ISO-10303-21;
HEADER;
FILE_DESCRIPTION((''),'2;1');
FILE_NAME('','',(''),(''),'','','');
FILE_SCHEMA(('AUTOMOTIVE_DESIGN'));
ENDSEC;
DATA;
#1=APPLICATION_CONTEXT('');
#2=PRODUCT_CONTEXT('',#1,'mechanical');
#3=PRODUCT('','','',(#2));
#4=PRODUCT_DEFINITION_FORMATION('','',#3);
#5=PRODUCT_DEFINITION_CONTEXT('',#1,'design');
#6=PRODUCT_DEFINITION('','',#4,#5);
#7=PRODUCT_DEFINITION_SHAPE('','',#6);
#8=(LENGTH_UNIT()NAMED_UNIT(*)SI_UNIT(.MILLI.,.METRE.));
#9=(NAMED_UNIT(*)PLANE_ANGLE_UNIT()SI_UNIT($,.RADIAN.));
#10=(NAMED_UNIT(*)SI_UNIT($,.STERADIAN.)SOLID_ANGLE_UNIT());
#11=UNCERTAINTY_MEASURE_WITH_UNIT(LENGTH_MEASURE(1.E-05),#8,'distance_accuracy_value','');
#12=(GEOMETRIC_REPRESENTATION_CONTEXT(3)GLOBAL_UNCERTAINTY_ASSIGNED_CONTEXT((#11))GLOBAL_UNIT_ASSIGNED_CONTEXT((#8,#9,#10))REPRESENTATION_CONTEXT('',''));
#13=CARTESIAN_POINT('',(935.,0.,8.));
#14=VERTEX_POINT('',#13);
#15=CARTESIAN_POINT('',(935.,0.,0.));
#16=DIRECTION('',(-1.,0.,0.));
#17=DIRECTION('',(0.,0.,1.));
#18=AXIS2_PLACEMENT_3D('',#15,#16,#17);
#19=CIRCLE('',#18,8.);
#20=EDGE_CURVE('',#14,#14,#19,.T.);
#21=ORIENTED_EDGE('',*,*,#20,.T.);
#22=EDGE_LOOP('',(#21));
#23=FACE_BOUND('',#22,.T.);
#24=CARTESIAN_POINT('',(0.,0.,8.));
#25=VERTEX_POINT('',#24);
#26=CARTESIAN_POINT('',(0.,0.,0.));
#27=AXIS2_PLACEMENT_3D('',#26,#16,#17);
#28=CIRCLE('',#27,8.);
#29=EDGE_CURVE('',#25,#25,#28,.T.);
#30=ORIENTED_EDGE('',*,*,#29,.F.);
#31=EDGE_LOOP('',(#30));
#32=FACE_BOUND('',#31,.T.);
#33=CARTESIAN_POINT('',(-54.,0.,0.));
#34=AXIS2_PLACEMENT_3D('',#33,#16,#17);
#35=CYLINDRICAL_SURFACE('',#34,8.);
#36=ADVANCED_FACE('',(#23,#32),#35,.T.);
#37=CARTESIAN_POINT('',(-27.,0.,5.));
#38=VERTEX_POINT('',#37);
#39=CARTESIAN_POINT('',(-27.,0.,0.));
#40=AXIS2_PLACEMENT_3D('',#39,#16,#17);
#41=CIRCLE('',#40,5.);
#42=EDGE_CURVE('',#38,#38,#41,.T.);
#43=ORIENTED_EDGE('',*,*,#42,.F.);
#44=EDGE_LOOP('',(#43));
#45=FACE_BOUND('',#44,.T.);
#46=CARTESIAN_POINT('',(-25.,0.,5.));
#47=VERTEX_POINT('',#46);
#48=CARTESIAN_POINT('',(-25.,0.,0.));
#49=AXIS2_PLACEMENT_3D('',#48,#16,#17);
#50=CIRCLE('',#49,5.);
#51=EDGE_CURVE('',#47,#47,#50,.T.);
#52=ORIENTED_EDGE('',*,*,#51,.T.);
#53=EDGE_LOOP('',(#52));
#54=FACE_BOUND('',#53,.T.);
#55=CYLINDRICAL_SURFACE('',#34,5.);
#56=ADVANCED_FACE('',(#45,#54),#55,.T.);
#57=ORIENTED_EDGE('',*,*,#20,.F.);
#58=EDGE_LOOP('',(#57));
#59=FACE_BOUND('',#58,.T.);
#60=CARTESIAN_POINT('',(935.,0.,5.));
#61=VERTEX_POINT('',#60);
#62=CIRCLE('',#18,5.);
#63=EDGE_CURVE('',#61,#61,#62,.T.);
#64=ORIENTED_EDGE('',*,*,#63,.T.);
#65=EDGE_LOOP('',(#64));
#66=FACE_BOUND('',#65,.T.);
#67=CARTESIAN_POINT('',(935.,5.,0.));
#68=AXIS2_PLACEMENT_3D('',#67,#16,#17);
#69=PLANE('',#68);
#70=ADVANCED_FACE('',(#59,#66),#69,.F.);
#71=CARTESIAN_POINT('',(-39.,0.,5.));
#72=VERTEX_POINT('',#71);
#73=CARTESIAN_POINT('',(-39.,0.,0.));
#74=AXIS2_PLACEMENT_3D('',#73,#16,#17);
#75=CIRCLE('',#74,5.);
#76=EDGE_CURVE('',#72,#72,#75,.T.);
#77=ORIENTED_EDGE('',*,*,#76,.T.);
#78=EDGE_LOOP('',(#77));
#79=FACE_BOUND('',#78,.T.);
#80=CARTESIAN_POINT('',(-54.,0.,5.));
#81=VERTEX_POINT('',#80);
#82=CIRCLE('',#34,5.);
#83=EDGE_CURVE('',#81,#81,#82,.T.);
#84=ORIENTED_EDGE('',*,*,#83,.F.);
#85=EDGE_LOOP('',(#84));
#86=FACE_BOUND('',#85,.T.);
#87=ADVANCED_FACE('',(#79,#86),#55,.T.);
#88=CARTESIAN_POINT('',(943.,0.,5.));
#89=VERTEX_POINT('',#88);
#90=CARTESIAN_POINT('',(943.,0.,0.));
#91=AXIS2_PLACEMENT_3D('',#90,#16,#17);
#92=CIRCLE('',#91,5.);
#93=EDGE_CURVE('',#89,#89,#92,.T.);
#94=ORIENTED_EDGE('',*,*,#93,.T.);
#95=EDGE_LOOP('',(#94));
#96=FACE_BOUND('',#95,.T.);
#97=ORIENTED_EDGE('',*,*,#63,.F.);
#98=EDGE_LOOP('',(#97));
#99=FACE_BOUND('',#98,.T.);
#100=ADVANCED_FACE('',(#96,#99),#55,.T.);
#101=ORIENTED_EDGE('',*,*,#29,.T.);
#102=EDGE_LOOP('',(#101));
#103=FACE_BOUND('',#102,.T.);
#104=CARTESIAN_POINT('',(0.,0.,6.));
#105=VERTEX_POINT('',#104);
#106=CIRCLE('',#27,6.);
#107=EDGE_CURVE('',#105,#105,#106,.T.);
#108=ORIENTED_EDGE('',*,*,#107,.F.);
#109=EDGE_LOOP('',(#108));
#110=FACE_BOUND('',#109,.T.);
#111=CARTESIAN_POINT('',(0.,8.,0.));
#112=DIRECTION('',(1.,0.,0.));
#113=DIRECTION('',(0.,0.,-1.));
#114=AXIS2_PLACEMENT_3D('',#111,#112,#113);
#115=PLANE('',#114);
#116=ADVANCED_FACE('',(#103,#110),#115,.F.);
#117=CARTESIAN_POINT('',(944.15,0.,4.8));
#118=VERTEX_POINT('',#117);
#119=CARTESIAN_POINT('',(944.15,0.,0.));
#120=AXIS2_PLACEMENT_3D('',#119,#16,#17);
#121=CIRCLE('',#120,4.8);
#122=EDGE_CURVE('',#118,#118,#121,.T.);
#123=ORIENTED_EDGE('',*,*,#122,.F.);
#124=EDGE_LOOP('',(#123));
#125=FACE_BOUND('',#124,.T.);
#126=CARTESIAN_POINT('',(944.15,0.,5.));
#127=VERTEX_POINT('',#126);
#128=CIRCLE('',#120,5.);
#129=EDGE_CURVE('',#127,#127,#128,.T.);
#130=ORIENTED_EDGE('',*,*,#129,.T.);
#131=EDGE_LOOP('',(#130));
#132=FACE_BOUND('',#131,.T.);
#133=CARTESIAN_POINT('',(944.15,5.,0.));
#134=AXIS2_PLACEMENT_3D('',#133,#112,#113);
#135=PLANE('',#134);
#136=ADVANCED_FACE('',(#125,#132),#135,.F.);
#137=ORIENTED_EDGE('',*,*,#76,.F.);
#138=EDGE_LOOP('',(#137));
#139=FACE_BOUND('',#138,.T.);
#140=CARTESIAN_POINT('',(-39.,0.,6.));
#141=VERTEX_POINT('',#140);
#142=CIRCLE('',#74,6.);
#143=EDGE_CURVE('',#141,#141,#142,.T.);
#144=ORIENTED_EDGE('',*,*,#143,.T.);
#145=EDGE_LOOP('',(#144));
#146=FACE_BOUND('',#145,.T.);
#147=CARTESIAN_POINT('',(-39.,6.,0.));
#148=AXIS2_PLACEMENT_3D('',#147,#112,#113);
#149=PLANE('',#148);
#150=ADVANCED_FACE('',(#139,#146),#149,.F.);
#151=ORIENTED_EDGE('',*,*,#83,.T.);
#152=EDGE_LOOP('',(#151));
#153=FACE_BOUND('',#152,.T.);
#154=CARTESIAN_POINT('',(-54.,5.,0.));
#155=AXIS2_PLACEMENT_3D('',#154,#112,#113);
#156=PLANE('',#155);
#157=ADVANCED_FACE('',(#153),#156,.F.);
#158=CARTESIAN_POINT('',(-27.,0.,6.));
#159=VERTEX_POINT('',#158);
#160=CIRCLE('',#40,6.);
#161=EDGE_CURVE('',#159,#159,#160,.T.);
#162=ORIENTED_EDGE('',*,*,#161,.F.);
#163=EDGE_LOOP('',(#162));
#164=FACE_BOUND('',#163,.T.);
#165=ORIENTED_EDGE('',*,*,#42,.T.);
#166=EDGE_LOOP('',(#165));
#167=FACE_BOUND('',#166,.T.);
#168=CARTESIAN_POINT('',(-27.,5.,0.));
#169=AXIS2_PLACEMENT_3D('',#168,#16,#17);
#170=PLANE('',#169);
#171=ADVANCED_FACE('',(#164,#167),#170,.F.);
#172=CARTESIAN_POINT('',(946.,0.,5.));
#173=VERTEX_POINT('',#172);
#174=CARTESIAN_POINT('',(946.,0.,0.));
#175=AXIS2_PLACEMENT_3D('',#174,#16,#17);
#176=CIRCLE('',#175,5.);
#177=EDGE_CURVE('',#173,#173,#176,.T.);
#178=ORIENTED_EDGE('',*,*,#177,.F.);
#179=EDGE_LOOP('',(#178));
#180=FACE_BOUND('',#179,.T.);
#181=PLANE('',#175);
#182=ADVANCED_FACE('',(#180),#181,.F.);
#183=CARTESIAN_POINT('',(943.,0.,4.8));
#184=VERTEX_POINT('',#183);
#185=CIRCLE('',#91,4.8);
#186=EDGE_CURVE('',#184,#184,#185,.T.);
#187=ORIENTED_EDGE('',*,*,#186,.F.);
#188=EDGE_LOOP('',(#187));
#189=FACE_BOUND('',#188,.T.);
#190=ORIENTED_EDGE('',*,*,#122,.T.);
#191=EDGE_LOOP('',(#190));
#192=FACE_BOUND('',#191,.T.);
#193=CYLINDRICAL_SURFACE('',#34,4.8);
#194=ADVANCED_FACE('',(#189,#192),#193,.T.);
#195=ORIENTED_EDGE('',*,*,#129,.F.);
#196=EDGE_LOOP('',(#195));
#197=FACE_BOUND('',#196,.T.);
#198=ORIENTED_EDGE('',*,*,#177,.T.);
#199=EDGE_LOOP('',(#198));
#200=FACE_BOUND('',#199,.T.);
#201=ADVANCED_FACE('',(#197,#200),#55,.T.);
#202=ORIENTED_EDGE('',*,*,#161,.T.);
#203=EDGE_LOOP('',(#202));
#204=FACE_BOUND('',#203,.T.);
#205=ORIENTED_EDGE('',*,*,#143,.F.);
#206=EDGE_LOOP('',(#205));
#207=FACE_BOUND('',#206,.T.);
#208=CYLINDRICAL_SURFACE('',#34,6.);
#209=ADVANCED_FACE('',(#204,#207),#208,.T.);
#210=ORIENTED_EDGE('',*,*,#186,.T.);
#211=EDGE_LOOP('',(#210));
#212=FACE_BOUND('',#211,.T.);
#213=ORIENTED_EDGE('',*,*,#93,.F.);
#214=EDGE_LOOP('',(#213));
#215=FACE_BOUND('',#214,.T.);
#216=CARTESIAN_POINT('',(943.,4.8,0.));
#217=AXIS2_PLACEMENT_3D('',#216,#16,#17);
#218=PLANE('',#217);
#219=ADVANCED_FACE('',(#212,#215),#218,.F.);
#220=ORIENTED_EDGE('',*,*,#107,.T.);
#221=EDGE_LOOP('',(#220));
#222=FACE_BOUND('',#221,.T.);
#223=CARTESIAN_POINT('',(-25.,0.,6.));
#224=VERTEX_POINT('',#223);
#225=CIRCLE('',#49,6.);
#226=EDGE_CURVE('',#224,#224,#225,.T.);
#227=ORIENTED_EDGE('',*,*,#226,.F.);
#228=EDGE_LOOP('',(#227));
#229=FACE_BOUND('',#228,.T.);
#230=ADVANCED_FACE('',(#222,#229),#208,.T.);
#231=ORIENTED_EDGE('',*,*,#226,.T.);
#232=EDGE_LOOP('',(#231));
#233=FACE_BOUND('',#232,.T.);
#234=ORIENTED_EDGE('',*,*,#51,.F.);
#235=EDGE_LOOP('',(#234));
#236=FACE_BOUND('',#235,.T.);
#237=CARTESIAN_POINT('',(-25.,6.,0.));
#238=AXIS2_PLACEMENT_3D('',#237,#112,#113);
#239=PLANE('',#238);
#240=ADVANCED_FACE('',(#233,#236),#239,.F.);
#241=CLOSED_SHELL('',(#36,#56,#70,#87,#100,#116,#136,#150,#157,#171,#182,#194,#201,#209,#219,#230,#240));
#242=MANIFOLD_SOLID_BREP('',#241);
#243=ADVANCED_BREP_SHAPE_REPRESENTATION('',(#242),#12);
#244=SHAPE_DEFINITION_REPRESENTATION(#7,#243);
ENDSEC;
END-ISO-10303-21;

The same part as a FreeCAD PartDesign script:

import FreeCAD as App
import Part
import Sketcher

doc = App.newDocument("Part")
body = doc.addObject("PartDesign::Body", "Body")

# Sketch on XY plane
sketch1 = body.newObject("Sketcher::SketchObject", "Sketch")
sketch1.AttachmentSupport = (doc.getObject("XY_Plane"), [""])
sketch1.MapMode = "FlatFace"
sketch1.addGeometry([
    Part.LineSegment(App.Vector(-54, 0, 0), App.Vector(946, 0, 0)),  # 0
    Part.LineSegment(App.Vector(946, 0, 0), App.Vector(946, 5, 0)),  # 1
    Part.LineSegment(App.Vector(946, 5, 0), App.Vector(944.15, 5, 0)),  # 2
    Part.LineSegment(App.Vector(944.15, 5, 0), App.Vector(944.15, 4.8, 0)),  # 3
    Part.LineSegment(App.Vector(944.15, 4.8, 0), App.Vector(943, 4.8, 0)),  # 4
    Part.LineSegment(App.Vector(943, 4.8, 0), App.Vector(943, 5, 0)),  # 5
    Part.LineSegment(App.Vector(943, 5, 0), App.Vector(935, 5, 0)),  # 6
    Part.LineSegment(App.Vector(935, 5, 0), App.Vector(935, 8, 0)),  # 7
    Part.LineSegment(App.Vector(935, 8, 0), App.Vector(0, 8, 0)),  # 8
    Part.LineSegment(App.Vector(0, 8, 0), App.Vector(0, 6, 0)),  # 9
    Part.LineSegment(App.Vector(0, 6, 0), App.Vector(-25, 6, 0)),  # 10
    Part.LineSegment(App.Vector(-25, 6, 0), App.Vector(-25, 5, 0)),  # 11
    Part.LineSegment(App.Vector(-25, 5, 0), App.Vector(-27, 5, 0)),  # 12
    Part.LineSegment(App.Vector(-27, 5, 0), App.Vector(-27, 6, 0)),  # 13
    Part.LineSegment(App.Vector(-27, 6, 0), App.Vector(-39, 6, 0)),  # 14
    Part.LineSegment(App.Vector(-39, 6, 0), App.Vector(-39, 5, 0)),  # 15
    Part.LineSegment(App.Vector(-39, 5, 0), App.Vector(-54, 5, 0)),  # 16
    Part.LineSegment(App.Vector(-54, 5, 0), App.Vector(-54, 0, 0)),  # 17
], False)
sketch1.addConstraint([
    Sketcher.Constraint("Coincident", 0, 2, 1, 1),
    Sketcher.Constraint("Coincident", 1, 2, 2, 1),
    Sketcher.Constraint("Coincident", 2, 2, 3, 1),
    Sketcher.Constraint("Coincident", 3, 2, 4, 1),
    Sketcher.Constraint("Coincident", 4, 2, 5, 1),
    Sketcher.Constraint("Coincident", 5, 2, 6, 1),
    Sketcher.Constraint("Coincident", 6, 2, 7, 1),
    Sketcher.Constraint("Coincident", 7, 2, 8, 1),
    Sketcher.Constraint("Coincident", 8, 2, 9, 1),
    Sketcher.Constraint("Coincident", 9, 2, 10, 1),
    Sketcher.Constraint("Coincident", 10, 2, 11, 1),
    Sketcher.Constraint("Coincident", 11, 2, 12, 1),
    Sketcher.Constraint("Coincident", 12, 2, 13, 1),
    Sketcher.Constraint("Coincident", 13, 2, 14, 1),
    Sketcher.Constraint("Coincident", 14, 2, 15, 1),
    Sketcher.Constraint("Coincident", 15, 2, 16, 1),
    Sketcher.Constraint("Coincident", 16, 2, 17, 1),
    Sketcher.Constraint("Coincident", 17, 2, 0, 1),
    Sketcher.Constraint("Horizontal", 0),
    Sketcher.Constraint("Vertical", 1),
    Sketcher.Constraint("Horizontal", 2),
    Sketcher.Constraint("Vertical", 3),
    Sketcher.Constraint("Horizontal", 4),
    Sketcher.Constraint("Vertical", 5),
    Sketcher.Constraint("Horizontal", 6),
    Sketcher.Constraint("Vertical", 7),
    Sketcher.Constraint("Horizontal", 8),
    Sketcher.Constraint("Vertical", 9),
    Sketcher.Constraint("Horizontal", 10),
    Sketcher.Constraint("Vertical", 11),
    Sketcher.Constraint("Horizontal", 12),
    Sketcher.Constraint("Vertical", 13),
    Sketcher.Constraint("Horizontal", 14),
    Sketcher.Constraint("Vertical", 15),
    Sketcher.Constraint("Horizontal", 16),
    Sketcher.Constraint("Vertical", 17),
    Sketcher.Constraint("PointOnObject", 0, 2, -1),
    Sketcher.Constraint("PointOnObject", 8, 2, -2),
    Sketcher.Constraint("Horizontal", 2, 2, 5, 2),
    Sketcher.Constraint("Horizontal", 6, 2, 11, 2),
    Sketcher.Constraint("Horizontal", 10, 2, 13, 2),
    Sketcher.Constraint("Horizontal", 12, 2, 15, 2),
    Sketcher.Constraint("Equal", 12, 9),
    Sketcher.Constraint("DistanceX", 0, 1, 0, 2, 1000.0),
    Sketcher.Constraint("DistanceX", 6, 2, 6, 1, 8.0),
    Sketcher.Constraint("DistanceX", 8, 2, 8, 1, 935.0),
    Sketcher.Constraint("DistanceX", 10, 2, 10, 1, 25.0),
    Sketcher.Constraint("DistanceX", 12, 2, 12, 1, 2.0),
    Sketcher.Constraint("DistanceX", 14, 2, 14, 1, 12.0),
    Sketcher.Constraint("DistanceX", 16, 2, 16, 1, 15.0),
    Sketcher.Constraint("DistanceY", 1, 1, 1, 2, 5.0),
    Sketcher.Constraint("DistanceY", 7, 1, 7, 2, 3.0),
    Sketcher.Constraint("DistanceY", 3, 2, 3, 1, 0.2),
    Sketcher.Constraint("DistanceX", 2, 2, 2, 1, 1.85),
])
revolution = body.newObject("PartDesign::Revolution", "Revolution")
revolution.Profile = sketch1
revolution.ReferenceAxis = (sketch1, ["H_Axis"])
revolution.Angle = 360

doc.recompute()
